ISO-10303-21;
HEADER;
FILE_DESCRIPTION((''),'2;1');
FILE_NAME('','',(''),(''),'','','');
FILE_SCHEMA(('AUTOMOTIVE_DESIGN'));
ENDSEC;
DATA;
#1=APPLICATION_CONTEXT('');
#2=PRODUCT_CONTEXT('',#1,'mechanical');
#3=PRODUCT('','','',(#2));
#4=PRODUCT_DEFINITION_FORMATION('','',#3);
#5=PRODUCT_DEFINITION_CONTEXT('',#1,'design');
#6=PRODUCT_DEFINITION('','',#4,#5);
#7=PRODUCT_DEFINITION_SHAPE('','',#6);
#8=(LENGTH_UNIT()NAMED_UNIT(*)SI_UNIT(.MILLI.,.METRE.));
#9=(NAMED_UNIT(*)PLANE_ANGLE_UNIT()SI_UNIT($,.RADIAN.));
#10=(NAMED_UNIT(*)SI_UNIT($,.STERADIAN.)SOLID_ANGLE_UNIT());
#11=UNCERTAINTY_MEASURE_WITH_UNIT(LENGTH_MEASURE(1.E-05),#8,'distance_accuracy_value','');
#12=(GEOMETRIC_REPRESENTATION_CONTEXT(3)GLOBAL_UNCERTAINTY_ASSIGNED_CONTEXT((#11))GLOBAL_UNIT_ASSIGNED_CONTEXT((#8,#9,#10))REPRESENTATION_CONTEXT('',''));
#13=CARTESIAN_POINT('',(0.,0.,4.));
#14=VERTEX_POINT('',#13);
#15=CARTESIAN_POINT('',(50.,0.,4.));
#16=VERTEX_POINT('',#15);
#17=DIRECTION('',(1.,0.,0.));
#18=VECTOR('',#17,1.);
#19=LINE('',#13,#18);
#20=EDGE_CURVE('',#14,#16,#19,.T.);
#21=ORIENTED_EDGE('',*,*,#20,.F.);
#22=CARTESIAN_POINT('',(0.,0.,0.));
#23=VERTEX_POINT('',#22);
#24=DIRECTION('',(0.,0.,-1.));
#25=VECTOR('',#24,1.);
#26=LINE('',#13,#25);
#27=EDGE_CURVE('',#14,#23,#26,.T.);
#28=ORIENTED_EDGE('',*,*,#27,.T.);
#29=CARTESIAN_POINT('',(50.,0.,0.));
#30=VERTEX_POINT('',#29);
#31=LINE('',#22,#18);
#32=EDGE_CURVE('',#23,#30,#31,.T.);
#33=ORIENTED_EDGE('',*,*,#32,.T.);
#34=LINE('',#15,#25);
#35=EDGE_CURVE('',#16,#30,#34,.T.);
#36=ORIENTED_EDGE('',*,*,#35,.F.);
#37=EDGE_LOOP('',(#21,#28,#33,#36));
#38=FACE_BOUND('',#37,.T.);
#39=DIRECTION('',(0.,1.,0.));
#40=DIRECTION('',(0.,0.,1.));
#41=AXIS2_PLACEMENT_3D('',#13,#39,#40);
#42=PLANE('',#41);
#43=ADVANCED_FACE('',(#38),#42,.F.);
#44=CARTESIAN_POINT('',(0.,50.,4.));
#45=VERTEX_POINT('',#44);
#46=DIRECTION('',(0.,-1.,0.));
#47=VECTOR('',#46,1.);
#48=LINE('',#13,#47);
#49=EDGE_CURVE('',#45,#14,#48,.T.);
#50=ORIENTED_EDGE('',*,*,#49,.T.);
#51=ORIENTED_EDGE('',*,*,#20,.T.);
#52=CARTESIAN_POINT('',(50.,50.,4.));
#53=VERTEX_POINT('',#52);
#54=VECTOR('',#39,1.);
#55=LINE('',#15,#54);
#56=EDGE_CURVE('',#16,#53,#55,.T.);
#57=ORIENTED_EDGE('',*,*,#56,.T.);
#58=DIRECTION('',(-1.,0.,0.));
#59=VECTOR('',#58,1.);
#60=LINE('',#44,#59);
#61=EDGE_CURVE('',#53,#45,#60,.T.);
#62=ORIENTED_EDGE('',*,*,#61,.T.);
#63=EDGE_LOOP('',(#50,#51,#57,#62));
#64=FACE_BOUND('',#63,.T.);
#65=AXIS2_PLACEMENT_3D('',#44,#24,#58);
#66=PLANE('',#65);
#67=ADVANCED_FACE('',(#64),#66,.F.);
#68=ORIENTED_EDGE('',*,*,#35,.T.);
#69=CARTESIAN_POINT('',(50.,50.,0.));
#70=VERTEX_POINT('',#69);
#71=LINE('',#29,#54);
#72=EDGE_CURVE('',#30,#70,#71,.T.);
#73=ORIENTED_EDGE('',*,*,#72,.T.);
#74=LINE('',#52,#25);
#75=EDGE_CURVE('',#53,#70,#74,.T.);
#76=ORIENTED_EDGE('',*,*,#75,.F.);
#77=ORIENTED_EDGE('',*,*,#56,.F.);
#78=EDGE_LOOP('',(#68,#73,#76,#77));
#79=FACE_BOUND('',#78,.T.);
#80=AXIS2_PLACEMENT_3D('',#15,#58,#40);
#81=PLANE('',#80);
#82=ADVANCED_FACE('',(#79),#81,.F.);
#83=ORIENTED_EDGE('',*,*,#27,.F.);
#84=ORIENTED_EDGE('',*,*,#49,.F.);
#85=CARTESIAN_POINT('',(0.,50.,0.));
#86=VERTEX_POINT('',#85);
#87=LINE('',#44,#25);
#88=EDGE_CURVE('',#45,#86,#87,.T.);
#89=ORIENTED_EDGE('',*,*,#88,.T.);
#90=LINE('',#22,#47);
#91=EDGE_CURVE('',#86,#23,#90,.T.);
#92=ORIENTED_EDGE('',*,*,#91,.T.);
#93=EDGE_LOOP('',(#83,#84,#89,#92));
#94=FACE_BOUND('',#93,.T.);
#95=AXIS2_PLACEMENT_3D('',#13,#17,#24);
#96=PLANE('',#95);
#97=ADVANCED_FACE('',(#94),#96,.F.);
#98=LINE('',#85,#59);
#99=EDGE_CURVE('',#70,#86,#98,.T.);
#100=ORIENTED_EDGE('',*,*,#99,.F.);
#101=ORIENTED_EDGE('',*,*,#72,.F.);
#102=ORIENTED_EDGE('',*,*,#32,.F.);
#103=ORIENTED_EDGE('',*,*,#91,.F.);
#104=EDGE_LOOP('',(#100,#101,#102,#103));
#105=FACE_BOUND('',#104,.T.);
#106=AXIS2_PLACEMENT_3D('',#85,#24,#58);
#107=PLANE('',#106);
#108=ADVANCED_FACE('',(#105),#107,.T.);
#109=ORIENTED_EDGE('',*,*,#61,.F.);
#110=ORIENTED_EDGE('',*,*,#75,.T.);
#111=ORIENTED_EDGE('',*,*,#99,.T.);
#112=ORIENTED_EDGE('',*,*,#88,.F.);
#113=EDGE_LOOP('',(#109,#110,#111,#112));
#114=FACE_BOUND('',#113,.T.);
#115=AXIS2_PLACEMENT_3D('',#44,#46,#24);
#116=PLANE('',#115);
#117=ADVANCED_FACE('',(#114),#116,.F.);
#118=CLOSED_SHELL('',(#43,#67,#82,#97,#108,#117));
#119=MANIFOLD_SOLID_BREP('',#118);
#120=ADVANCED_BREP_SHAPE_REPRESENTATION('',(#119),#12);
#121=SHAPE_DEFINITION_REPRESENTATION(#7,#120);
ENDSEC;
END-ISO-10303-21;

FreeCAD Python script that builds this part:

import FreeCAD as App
import Part
import Sketcher

V = App.Vector
Q = App.Units.Quantity


def add_polygon(sketch, points):
    """Adds a closed chain of lines whose ends are joined by coincident constraints."""
    first, n = sketch.GeometryCount, len(points)
    for a, b in zip(points, points[1:] + points[:1]):
        sketch.addGeometry(Part.LineSegment(App.Vector(*a, 0), App.Vector(*b, 0)), False)
    for i in range(n):
        sketch.addConstraint(Sketcher.Constraint("Coincident", first + i, 2, first + (i + 1) % n, 1))

doc = App.newDocument("Part")
params = doc.addObject("Spreadsheet::Sheet", "Params")
for row, (alias, value) in enumerate([
    ("sketch1_width", "50 mm"),
    ("pad1_length", "4 mm"),
], start=1):
    params.set(f"A{row}", alias)
    params.set(f"B{row}", "=" + value)
    params.setAlias(f"B{row}", alias)

body = doc.addObject("PartDesign::Body", "Body")

sketch1 = body.newObject("Sketcher::SketchObject", "Sketch")
sketch1.AttachmentSupport = (doc.getObject("XY_Plane"), [""])
sketch1.MapMode = "FlatFace"
add_polygon(sketch1, [(0, 50), (0, 0), (50, 0), (50, 50)])
sketch1.addConstraint([
    Sketcher.Constraint("Vertical", 0),
    Sketcher.Constraint("Horizontal", 1),
    Sketcher.Constraint("Vertical", 2),
    Sketcher.Constraint("Horizontal", 3),
    Sketcher.Constraint("Coincident", 0, 2, -1, 1),
    Sketcher.Constraint("Equal", 3, 0),
    Sketcher.Constraint("DistanceX", 1, 1, 1, 2, Q("50 mm")),
])
sketch1.setExpression("Constraints[10]", "Params.sketch1_width")
pad1 = body.newObject("PartDesign::Pad", "Pad")
pad1.Profile = sketch1
pad1.setExpression("Length", "Params.pad1_length")

doc.recompute()
